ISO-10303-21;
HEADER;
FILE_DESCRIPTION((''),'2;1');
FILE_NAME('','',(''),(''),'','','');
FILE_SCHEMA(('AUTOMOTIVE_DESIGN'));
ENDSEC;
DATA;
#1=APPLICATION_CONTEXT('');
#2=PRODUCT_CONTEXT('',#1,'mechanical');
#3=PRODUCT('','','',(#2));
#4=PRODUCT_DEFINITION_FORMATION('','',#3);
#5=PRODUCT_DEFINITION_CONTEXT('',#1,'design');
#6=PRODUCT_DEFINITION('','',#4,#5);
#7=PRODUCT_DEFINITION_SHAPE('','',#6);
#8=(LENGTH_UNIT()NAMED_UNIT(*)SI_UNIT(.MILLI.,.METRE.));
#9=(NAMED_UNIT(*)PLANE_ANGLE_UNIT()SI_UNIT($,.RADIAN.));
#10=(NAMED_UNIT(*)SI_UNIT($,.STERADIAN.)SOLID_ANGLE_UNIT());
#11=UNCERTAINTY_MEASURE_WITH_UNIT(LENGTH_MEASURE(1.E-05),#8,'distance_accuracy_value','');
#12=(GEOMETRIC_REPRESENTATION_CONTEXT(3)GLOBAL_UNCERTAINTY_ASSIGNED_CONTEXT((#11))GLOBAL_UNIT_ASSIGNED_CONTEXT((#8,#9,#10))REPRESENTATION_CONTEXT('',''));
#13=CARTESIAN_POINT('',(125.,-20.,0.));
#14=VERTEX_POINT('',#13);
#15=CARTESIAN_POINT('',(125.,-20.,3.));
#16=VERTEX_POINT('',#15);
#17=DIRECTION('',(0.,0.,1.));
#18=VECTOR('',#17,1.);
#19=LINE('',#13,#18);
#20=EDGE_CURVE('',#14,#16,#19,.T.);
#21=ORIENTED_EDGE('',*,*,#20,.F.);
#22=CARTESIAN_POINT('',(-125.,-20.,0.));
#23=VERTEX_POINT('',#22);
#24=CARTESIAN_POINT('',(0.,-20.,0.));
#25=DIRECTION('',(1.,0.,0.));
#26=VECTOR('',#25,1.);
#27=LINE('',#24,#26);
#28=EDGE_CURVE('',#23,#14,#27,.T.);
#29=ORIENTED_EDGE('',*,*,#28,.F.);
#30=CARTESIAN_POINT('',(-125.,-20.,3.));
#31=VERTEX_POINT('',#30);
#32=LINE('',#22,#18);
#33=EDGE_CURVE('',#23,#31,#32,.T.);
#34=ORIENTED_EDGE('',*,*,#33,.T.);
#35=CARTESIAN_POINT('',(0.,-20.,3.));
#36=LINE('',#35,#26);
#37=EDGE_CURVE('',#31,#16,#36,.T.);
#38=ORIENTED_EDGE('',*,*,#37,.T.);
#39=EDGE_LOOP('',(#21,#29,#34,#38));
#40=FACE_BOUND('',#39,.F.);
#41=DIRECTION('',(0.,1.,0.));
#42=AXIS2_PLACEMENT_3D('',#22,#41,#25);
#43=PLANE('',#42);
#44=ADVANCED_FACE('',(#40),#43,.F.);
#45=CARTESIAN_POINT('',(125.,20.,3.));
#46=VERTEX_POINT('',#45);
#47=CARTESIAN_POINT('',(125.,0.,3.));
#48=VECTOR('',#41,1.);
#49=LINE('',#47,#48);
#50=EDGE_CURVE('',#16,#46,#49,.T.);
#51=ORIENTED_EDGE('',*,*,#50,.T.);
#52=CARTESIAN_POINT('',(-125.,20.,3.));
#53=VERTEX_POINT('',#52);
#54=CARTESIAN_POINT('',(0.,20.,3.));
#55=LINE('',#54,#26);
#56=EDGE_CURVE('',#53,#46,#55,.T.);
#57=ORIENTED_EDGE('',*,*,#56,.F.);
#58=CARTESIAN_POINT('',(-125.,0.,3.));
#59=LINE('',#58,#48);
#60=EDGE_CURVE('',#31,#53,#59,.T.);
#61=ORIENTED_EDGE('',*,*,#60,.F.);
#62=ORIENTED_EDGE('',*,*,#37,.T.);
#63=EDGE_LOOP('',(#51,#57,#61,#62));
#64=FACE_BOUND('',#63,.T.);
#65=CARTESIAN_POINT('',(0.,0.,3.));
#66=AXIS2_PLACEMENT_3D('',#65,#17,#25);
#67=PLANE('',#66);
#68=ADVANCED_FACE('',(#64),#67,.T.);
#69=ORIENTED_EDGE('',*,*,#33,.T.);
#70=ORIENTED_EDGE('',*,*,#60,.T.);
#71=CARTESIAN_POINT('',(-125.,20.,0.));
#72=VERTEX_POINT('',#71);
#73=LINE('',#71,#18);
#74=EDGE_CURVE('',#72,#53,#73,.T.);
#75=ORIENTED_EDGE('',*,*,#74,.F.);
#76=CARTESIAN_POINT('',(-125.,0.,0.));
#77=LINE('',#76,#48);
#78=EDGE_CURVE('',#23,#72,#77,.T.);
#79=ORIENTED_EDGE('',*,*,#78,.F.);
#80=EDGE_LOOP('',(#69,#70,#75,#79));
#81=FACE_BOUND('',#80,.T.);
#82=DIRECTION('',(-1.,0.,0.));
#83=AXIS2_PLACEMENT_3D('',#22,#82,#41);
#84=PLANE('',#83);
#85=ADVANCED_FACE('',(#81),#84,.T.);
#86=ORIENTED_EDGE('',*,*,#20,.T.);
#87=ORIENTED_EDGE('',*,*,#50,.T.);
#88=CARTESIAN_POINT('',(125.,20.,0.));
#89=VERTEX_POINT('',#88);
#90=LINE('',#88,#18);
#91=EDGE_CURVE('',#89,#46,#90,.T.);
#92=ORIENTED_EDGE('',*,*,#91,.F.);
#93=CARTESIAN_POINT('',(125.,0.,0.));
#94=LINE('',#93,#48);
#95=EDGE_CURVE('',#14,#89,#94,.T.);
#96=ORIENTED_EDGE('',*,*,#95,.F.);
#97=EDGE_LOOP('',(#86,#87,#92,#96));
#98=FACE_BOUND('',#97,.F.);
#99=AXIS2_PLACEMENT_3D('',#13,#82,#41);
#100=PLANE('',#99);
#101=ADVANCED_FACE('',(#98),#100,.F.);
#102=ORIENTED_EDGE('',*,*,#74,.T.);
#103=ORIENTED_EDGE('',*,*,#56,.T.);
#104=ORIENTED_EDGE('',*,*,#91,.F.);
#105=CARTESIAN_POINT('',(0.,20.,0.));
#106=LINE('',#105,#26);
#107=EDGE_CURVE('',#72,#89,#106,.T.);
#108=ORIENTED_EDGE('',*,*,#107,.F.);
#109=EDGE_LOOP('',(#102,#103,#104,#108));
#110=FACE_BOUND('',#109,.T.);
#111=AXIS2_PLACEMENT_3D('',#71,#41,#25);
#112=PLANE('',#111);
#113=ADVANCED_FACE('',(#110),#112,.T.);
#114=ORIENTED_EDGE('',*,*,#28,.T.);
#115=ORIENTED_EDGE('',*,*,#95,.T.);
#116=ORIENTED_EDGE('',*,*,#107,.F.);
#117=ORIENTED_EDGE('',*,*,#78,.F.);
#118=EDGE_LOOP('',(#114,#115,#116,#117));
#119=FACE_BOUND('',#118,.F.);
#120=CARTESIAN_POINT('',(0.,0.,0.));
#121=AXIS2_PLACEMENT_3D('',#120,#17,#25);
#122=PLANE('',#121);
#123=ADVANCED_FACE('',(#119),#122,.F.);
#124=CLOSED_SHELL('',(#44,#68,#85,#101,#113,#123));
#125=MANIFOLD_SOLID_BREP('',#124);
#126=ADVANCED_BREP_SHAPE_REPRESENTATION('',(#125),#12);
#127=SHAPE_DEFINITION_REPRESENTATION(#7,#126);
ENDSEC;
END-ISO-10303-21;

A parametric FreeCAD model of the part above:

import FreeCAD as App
import Part
import Sketcher
from FreeCAD import Vector


def add_polygon(sketch, points):
    """Adds a closed chain of lines whose ends are joined by coincident constraints."""
    first, n = sketch.GeometryCount, len(points)
    for a, b in zip(points, points[1:] + points[:1]):
        sketch.addGeometry(Part.LineSegment(App.Vector(*a, 0), App.Vector(*b, 0)), False)
    for i in range(n):
        sketch.addConstraint(Sketcher.Constraint("Coincident", first + i, 2, first + (i + 1) % n, 1))

doc = App.newDocument("Part")
body = doc.addObject("PartDesign::Body", "Body")

sketch1 = doc.addObject("Sketcher::SketchObject", "Sketch")
body.addObject(sketch1)
sketch1.AttachmentSupport = (doc.XY_Plane, [""])
sketch1.MapMode = "FlatFace"
add_polygon(sketch1, [(-125, 20), (-125, -20), (125, -20), (125, 20)])
sketch1.addConstraint([
    Sketcher.Constraint("Vertical", 0),
    Sketcher.Constraint("Horizontal", 1),
    Sketcher.Constraint("Vertical", 2),
    Sketcher.Constraint("Horizontal", 3),
    Sketcher.Constraint("Symmetric", 0, 2, 2, 2, -1, 1),
    Sketcher.Constraint("DistanceX", 1, 1, 1, 2, 250.0),
    Sketcher.Constraint("DistanceY", 0, 2, 0, 1, 40.0),
])
pad1 = doc.addObject("PartDesign::Pad", "Pad")
body.addObject(pad1)
pad1.Profile = sketch1
pad1.Length = 3

doc.recompute()
